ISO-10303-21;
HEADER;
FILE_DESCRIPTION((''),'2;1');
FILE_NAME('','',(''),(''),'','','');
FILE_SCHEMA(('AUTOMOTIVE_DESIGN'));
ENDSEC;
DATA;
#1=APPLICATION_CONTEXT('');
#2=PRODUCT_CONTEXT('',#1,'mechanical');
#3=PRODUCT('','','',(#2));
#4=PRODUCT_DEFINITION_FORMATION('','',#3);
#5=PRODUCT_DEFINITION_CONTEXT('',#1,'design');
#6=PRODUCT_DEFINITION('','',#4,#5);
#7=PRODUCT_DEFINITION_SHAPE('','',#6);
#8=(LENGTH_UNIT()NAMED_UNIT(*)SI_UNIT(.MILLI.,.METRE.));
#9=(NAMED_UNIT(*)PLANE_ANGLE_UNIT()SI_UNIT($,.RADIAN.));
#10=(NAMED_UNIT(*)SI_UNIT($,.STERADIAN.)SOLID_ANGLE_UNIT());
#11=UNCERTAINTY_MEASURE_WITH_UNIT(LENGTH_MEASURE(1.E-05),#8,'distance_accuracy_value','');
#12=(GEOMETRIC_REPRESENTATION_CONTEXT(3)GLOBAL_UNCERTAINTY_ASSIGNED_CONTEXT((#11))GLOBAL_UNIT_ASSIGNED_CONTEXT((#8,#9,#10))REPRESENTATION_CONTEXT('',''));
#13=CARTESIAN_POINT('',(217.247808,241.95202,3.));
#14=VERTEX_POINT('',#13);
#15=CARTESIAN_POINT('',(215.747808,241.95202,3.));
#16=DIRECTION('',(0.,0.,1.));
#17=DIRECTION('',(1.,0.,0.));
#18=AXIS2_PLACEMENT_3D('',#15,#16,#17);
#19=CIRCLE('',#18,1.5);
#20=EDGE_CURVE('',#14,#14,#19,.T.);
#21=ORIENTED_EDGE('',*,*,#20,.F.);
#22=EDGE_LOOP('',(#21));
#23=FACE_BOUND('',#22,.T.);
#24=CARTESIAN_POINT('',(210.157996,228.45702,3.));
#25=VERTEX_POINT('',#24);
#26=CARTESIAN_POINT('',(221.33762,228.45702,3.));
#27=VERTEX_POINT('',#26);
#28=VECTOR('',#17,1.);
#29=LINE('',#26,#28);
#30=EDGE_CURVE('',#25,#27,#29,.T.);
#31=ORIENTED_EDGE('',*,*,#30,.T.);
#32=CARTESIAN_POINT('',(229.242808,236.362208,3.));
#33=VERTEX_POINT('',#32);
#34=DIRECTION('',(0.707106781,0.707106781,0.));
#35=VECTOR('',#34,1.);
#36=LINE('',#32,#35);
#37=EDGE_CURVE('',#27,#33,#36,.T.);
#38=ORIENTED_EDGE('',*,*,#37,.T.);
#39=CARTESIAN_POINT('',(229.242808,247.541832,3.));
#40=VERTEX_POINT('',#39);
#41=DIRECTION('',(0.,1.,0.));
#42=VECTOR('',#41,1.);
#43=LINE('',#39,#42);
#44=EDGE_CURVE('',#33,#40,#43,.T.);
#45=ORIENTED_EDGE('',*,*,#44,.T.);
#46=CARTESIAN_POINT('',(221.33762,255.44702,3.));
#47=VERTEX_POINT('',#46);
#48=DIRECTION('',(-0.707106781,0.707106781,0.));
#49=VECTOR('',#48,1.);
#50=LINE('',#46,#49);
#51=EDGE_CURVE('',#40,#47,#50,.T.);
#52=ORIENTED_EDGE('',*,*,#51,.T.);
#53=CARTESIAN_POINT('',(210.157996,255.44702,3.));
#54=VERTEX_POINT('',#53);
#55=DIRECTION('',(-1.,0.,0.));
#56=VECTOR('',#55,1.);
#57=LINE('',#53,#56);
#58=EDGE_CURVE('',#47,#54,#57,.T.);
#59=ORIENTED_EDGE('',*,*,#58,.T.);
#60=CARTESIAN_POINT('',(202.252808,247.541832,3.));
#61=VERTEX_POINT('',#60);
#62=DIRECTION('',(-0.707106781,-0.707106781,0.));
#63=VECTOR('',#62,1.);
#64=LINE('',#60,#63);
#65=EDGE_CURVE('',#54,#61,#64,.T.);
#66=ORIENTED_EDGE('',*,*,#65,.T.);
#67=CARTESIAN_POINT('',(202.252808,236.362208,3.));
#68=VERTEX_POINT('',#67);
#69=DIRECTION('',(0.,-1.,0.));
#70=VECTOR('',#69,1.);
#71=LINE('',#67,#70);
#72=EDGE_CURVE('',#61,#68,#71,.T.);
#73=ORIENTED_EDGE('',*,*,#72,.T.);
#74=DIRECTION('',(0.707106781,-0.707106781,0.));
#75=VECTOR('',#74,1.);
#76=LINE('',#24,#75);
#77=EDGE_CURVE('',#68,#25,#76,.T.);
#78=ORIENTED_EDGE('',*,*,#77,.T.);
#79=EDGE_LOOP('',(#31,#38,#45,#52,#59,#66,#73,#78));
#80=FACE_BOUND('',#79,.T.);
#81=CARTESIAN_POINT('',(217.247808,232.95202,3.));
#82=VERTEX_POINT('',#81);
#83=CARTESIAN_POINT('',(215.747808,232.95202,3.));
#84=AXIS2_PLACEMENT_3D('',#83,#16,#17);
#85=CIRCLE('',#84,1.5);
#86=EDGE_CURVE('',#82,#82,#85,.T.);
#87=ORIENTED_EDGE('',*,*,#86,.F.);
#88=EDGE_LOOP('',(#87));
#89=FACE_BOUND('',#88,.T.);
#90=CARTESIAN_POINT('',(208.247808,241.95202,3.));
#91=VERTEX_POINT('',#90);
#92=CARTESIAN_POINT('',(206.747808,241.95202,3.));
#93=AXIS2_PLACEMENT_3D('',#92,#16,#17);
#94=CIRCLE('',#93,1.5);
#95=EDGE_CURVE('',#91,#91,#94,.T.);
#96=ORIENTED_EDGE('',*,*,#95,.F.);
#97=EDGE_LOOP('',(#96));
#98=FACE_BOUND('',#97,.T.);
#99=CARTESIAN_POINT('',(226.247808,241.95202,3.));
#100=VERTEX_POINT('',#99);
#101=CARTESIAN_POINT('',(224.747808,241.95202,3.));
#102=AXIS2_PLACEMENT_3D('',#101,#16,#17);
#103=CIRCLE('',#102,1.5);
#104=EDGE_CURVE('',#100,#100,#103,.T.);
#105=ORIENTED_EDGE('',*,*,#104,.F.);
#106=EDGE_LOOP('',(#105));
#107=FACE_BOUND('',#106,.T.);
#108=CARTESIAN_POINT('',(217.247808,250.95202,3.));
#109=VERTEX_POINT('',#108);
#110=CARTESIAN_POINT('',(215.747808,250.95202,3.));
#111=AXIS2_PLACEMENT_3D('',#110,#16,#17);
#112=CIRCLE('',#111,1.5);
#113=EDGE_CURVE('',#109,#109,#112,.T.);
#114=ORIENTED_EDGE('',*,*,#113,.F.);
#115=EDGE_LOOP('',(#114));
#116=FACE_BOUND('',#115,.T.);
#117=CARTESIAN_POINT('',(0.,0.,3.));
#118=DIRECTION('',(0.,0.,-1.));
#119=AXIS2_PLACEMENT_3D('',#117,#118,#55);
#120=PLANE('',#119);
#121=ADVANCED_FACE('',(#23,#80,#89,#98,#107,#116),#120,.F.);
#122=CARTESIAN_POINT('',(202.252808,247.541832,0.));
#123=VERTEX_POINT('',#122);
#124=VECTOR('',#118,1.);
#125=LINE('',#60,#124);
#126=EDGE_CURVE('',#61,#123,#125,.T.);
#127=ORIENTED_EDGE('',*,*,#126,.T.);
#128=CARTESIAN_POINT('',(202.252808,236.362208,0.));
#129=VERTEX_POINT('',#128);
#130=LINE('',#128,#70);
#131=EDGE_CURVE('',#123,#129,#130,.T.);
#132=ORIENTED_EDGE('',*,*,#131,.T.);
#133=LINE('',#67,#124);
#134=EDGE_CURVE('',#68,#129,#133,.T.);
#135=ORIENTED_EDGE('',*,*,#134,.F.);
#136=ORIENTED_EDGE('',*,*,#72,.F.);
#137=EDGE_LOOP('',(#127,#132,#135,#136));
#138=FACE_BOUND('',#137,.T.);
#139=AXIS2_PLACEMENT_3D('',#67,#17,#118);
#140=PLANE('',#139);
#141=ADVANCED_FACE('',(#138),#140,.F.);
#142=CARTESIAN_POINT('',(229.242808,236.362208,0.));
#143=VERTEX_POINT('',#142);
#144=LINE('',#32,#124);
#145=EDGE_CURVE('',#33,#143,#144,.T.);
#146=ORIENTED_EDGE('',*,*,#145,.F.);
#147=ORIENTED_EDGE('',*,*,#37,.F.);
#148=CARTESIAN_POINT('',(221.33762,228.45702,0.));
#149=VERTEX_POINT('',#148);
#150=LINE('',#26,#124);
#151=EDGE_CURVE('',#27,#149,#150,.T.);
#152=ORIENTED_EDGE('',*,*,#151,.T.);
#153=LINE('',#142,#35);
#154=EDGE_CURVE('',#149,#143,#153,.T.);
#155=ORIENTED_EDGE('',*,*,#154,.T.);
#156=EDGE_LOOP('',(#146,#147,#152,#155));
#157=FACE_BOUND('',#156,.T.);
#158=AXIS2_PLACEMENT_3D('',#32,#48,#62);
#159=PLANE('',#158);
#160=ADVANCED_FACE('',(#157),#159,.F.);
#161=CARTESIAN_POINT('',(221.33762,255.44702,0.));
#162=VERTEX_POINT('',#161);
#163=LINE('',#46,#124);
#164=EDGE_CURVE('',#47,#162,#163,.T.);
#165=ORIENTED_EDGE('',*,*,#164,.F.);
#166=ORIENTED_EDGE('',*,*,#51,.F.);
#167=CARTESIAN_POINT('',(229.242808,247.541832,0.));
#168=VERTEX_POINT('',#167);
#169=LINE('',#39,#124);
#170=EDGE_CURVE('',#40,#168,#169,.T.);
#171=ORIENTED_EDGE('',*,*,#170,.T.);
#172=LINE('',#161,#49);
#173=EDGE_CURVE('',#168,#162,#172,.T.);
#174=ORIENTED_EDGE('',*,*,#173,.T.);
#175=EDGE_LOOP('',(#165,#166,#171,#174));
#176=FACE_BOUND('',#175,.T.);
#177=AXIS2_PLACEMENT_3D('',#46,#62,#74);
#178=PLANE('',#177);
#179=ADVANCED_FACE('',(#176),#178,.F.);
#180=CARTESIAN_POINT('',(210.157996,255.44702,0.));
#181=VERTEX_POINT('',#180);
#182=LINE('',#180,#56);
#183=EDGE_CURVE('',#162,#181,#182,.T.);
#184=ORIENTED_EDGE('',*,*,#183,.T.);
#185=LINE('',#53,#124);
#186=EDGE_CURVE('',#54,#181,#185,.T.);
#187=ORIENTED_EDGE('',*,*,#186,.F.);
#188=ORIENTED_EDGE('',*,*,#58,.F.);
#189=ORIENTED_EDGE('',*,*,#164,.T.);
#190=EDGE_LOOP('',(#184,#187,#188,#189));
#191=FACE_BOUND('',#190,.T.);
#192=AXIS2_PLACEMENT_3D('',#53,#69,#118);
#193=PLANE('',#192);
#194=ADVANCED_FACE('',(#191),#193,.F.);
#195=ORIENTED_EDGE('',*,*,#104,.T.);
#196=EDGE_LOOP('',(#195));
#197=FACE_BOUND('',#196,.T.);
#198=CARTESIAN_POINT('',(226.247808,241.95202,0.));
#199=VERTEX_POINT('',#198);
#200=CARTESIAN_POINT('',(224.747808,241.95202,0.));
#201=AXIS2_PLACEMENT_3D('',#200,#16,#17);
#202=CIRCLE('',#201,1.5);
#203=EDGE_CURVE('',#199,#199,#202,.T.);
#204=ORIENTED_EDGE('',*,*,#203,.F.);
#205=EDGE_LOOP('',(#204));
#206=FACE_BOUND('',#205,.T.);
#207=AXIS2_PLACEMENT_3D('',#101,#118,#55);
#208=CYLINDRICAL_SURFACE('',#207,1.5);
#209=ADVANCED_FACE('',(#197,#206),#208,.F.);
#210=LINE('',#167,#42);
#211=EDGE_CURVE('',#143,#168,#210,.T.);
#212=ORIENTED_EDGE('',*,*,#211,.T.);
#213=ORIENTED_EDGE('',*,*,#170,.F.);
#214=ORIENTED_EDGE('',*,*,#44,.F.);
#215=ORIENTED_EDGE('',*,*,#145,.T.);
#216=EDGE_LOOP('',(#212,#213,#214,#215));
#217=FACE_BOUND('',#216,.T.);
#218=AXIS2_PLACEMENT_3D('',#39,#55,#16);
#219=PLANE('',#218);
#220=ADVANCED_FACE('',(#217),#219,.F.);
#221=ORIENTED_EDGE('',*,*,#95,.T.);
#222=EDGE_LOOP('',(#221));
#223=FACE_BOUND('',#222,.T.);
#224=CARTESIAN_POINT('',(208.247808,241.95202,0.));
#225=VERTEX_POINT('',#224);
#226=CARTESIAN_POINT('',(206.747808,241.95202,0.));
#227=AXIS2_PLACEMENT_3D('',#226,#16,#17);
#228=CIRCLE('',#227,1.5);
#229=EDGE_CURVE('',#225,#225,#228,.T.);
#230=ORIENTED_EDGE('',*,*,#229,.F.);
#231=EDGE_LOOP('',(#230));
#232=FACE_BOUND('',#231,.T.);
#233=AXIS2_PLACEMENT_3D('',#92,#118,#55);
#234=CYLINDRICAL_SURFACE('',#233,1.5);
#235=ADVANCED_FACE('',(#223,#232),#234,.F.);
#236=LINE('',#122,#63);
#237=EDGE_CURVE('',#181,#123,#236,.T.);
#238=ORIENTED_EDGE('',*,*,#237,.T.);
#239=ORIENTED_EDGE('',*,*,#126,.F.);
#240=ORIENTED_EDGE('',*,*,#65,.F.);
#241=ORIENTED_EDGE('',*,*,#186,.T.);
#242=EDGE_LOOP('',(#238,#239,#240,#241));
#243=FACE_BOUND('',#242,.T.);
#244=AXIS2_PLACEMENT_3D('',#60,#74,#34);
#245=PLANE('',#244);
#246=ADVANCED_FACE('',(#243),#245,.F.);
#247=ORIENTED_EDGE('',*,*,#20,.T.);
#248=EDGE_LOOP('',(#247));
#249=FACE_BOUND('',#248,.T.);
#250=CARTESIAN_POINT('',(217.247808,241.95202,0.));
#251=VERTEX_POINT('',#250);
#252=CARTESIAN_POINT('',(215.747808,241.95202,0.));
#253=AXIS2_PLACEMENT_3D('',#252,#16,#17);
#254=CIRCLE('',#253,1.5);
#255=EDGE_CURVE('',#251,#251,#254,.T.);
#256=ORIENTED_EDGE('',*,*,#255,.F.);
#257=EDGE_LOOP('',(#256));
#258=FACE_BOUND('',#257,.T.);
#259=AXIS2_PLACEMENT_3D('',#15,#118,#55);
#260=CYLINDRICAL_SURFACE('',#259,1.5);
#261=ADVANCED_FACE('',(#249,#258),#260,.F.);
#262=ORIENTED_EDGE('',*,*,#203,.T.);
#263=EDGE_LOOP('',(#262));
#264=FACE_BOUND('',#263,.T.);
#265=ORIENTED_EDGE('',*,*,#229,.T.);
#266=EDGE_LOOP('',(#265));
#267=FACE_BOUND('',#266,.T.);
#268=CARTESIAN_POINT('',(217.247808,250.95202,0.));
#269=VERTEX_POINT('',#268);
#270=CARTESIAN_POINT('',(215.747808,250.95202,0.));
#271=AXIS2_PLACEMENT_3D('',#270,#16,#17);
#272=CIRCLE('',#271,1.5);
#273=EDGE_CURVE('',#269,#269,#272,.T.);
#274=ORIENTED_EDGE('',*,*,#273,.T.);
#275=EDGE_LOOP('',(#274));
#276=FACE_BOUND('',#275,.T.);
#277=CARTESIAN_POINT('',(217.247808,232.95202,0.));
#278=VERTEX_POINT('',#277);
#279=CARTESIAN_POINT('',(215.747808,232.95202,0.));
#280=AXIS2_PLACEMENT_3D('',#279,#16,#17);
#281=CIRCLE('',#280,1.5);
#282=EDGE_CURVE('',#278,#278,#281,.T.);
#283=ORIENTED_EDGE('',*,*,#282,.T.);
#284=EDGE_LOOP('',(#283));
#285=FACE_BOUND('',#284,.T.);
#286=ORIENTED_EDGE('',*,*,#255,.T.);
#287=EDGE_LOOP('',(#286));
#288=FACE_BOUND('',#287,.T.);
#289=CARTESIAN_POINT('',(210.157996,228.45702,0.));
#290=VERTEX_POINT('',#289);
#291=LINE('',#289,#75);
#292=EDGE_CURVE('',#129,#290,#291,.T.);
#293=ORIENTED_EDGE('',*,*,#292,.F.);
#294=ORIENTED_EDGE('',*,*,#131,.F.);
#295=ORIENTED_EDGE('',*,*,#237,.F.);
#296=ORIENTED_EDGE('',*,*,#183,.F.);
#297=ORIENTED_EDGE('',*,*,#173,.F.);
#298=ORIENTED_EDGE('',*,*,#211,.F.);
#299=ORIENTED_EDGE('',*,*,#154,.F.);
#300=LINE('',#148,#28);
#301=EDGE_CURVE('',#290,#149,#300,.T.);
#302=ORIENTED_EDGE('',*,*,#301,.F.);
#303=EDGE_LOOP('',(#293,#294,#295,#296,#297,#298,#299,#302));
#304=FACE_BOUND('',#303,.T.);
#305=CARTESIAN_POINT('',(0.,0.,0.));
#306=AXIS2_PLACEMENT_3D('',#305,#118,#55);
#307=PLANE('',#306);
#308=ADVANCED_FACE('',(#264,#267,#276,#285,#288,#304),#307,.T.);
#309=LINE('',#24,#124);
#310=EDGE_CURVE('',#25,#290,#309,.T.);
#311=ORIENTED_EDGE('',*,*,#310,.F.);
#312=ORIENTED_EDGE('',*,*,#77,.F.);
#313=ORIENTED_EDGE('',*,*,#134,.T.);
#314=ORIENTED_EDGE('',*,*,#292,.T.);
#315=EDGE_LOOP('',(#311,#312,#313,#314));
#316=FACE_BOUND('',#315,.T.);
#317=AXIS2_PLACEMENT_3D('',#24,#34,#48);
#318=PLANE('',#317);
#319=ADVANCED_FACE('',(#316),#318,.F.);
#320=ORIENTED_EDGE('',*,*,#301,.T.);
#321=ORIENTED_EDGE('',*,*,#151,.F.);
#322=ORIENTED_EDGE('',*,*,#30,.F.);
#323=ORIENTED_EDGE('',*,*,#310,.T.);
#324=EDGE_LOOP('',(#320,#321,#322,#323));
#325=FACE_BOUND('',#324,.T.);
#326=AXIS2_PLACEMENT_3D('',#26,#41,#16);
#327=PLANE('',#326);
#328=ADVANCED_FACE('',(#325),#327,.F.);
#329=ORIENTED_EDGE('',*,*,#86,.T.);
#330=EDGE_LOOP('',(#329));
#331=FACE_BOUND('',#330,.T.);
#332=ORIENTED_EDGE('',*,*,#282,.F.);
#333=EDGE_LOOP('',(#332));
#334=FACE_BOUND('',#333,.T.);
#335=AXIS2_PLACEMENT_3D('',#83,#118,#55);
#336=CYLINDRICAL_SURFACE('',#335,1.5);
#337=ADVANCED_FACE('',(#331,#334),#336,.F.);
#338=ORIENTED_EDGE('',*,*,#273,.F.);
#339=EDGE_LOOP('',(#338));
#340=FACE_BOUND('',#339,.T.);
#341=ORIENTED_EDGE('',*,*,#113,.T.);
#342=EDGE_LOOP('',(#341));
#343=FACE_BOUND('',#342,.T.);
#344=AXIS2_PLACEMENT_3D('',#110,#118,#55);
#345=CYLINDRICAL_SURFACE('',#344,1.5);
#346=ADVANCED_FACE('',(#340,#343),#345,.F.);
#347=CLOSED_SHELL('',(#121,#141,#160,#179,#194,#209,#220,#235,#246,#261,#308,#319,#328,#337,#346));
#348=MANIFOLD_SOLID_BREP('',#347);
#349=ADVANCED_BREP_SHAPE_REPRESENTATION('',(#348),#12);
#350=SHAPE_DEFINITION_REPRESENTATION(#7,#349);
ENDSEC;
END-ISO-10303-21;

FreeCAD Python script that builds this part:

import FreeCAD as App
import Part
import Sketcher
Q = App.Units.Quantity


def add_polygon(sketch, points):
    """Adds a closed chain of lines whose ends are joined by coincident constraints."""
    first, n = sketch.GeometryCount, len(points)
    for a, b in zip(points, points[1:] + points[:1]):
        sketch.addGeometry(Part.LineSegment(App.Vector(*a, 0), App.Vector(*b, 0)), False)
    for i in range(n):
        sketch.addConstraint(Sketcher.Constraint("Coincident", first + i, 2, first + (i + 1) % n, 1))

doc = App.newDocument("Part")
params = doc.addObject("Spreadsheet::Sheet", "Params")
for row, (alias, value) in enumerate([
    ("sketch1_diameter", "3 mm"),
    ("pad1_length", "3 mm"),
], start=1):
    params.set(f"A{row}", alias)
    params.set(f"B{row}", "=" + value)
    params.setAlias(f"B{row}", alias)

body = doc.addObject("PartDesign::Body", "Body")

sketch1 = body.newObject("Sketcher::SketchObject", "Sketch")
sketch1.AttachmentSupport = (doc.getObject("XY_Plane"), [""])
sketch1.MapMode = "FlatFace"
add_polygon(sketch1, [(210.2, 228.5), (221.3, 228.5), (229.2, 236.4), (229.2, 247.5), (221.3, 255.4), (210.2, 255.4), (202.3, 247.5), (202.3, 236.4)])
sketch1.addGeometry(Part.Circle(App.Vector(215.7, 233, 0), App.Vector(0, 0, 1), 1.5), False)
sketch1.addGeometry(Part.Circle(App.Vector(224.7, 242, 0), App.Vector(0, 0, 1), 1.5), False)
sketch1.addGeometry(Part.Circle(App.Vector(215.7, 242, 0), App.Vector(0, 0, 1), 1.5), False)
sketch1.addGeometry(Part.Circle(App.Vector(215.7, 251, 0), App.Vector(0, 0, 1), 1.5), False)
sketch1.addGeometry(Part.Circle(App.Vector(206.7, 242, 0), App.Vector(0, 0, 1), 1.5), False)
sketch1.addConstraint(Sketcher.Constraint("Horizontal", 0))
sketch1.addConstraint(Sketcher.Constraint("Vertical", 2))
sketch1.addConstraint(Sketcher.Constraint("Horizontal", 4))
sketch1.addConstraint(Sketcher.Constraint("Vertical", 6))
sketch1.addConstraint(Sketcher.Constraint("Equal", 8, 9))
sketch1.addConstraint(Sketcher.Constraint("Equal", 9, 10))
sketch1.addConstraint(Sketcher.Constraint("Equal", 10, 11))
sketch1.addConstraint(Sketcher.Constraint("Equal", 11, 12))
sketch1.addConstraint(Sketcher.Constraint("Perpendicular", 1, 3))
sketch1.addConstraint(Sketcher.Constraint("Perpendicular", 3, 5))
sketch1.addConstraint(Sketcher.Constraint("Perpendicular", 5, 7))
sketch1.addConstraint(Sketcher.Constraint("Horizontal", 9, 3, 10, 3))
sketch1.addConstraint(Sketcher.Constraint("Horizontal", 10, 3, 12, 3))
sketch1.addConstraint(Sketcher.Constraint("Horizontal", 2, 2, 5, 2))
sketch1.addConstraint(Sketcher.Constraint("Horizontal", 1, 2, 6, 2))
sketch1.addConstraint(Sketcher.Constraint("Vertical", 8, 3, 10, 3))
sketch1.addConstraint(Sketcher.Constraint("Vertical", 10, 3, 11, 3))
sketch1.addConstraint(Sketcher.Constraint("Vertical", 0, 2, 3, 2))
sketch1.addConstraint(Sketcher.Constraint("Vertical", 4, 2, 7, 2))
sketch1.addConstraint(Sketcher.Constraint("Equal", 4, 2))
sketch1.addConstraint(Sketcher.Constraint("Diameter", 8, Q("3 mm")))
sketch1.addConstraint(Sketcher.Constraint("DistanceX", 8, 3, 9, 3, Q("9 mm")))
sketch1.addConstraint(Sketcher.Constraint("DistanceY", 8, 3, 9, 3, Q("9 mm")))
sketch1.addConstraint(Sketcher.Constraint("DistanceY", 10, 3, 11, 3, Q("9 mm")))
sketch1.addConstraint(Sketcher.Constraint("DistanceX", 12, 3, 10, 3, Q("9 mm")))
sketch1.addConstraint(Sketcher.Constraint("DistanceY", 0, 2, 8, 3, Q("4.495 mm")))
sketch1.addConstraint(Sketcher.Constraint("DistanceX", 9, 3, 1, 2, Q("4.495 mm")))
sketch1.addConstraint(Sketcher.Constraint("DistanceY", 11, 3, 3, 2, Q("4.495 mm")))
sketch1.addConstraint(Sketcher.Constraint("DistanceX", 0, 1, 0, 2, Q("11.179624 mm")))
sketch1.addConstraint(Sketcher.Constraint("DistanceY", -1, 1, 8, 3, Q("232.95202 mm")))
sketch1.addConstraint(Sketcher.Constraint("DistanceX", -1, 1, 0, 2, Q("221.33762 mm")))
sketch1.setExpression("Constraints[28]", "Params.sketch1_diameter")
pad1 = body.newObject("PartDesign::Pad", "Pad")
pad1.Profile = sketch1
pad1.setExpression("Length", "Params.pad1_length")

doc.recompute()
